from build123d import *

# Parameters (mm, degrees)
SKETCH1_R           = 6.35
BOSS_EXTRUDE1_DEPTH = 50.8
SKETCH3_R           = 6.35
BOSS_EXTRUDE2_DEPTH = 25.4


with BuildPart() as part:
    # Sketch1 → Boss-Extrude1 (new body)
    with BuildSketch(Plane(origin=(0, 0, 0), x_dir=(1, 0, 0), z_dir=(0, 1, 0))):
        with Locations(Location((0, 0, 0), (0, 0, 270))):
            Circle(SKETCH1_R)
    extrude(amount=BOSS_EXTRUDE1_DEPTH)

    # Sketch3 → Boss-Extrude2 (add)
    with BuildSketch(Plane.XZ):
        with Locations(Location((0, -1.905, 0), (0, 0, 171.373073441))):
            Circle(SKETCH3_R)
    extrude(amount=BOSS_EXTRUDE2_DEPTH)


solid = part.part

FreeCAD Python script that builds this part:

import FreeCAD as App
import Part
import Sketcher
Q = App.Units.Quantity

doc = App.newDocument("Part")
body = doc.addObject("PartDesign::Body", "Body")

# Sketch on XZ plane
sketch1 = doc.addObject("Sketcher::SketchObject", "Sketch")
body.addObject(sketch1)
sketch1.AttachmentSupport = (doc.XZ_Plane, [""])
sketch1.MapMode = "FlatFace"
sketch1.addGeometry(Part.Circle(App.Vector(0, 0, 0), App.Vector(0, 0, 1), 6), False)
sketch1.addConstraint(Sketcher.Constraint("Coincident", 0, 3, -1, 1))
sketch1.addConstraint(Sketcher.Constraint("Diameter", 0, Q("0.5 in")))
pad1 = doc.addObject("PartDesign::Pad", "Pad")
body.addObject(pad1)
pad1.Profile = sketch1
pad1.Length = Q("2 in")
pad1.Reversed = True

# Sketch on XZ plane
sketch2 = doc.addObject("Sketcher::SketchObject", "Sketch001")
body.addObject(sketch2)
sketch2.AttachmentSupport = (doc.XZ_Plane, [""])
sketch2.MapMode = "FlatFace"
sketch2.addGeometry(Part.Circle(App.Vector(0, -2, 0), App.Vector(0, 0, 1), 6), False)
sketch2.addConstraint(Sketcher.Constraint("PointOnObject", 0, 3, -2))
sketch2.addConstraint(Sketcher.Constraint("Diameter", 0, Q("0.5 in")))
sketch2.addConstraint(Sketcher.Constraint("DistanceY", 0, 3, -1, 1, Q("0.075 in")))
pad2 = doc.addObject("PartDesign::Pad", "Pad001")
body.addObject(pad2)
pad2.Profile = sketch2
pad2.Length = Q("1 in")

doc.recompute()
